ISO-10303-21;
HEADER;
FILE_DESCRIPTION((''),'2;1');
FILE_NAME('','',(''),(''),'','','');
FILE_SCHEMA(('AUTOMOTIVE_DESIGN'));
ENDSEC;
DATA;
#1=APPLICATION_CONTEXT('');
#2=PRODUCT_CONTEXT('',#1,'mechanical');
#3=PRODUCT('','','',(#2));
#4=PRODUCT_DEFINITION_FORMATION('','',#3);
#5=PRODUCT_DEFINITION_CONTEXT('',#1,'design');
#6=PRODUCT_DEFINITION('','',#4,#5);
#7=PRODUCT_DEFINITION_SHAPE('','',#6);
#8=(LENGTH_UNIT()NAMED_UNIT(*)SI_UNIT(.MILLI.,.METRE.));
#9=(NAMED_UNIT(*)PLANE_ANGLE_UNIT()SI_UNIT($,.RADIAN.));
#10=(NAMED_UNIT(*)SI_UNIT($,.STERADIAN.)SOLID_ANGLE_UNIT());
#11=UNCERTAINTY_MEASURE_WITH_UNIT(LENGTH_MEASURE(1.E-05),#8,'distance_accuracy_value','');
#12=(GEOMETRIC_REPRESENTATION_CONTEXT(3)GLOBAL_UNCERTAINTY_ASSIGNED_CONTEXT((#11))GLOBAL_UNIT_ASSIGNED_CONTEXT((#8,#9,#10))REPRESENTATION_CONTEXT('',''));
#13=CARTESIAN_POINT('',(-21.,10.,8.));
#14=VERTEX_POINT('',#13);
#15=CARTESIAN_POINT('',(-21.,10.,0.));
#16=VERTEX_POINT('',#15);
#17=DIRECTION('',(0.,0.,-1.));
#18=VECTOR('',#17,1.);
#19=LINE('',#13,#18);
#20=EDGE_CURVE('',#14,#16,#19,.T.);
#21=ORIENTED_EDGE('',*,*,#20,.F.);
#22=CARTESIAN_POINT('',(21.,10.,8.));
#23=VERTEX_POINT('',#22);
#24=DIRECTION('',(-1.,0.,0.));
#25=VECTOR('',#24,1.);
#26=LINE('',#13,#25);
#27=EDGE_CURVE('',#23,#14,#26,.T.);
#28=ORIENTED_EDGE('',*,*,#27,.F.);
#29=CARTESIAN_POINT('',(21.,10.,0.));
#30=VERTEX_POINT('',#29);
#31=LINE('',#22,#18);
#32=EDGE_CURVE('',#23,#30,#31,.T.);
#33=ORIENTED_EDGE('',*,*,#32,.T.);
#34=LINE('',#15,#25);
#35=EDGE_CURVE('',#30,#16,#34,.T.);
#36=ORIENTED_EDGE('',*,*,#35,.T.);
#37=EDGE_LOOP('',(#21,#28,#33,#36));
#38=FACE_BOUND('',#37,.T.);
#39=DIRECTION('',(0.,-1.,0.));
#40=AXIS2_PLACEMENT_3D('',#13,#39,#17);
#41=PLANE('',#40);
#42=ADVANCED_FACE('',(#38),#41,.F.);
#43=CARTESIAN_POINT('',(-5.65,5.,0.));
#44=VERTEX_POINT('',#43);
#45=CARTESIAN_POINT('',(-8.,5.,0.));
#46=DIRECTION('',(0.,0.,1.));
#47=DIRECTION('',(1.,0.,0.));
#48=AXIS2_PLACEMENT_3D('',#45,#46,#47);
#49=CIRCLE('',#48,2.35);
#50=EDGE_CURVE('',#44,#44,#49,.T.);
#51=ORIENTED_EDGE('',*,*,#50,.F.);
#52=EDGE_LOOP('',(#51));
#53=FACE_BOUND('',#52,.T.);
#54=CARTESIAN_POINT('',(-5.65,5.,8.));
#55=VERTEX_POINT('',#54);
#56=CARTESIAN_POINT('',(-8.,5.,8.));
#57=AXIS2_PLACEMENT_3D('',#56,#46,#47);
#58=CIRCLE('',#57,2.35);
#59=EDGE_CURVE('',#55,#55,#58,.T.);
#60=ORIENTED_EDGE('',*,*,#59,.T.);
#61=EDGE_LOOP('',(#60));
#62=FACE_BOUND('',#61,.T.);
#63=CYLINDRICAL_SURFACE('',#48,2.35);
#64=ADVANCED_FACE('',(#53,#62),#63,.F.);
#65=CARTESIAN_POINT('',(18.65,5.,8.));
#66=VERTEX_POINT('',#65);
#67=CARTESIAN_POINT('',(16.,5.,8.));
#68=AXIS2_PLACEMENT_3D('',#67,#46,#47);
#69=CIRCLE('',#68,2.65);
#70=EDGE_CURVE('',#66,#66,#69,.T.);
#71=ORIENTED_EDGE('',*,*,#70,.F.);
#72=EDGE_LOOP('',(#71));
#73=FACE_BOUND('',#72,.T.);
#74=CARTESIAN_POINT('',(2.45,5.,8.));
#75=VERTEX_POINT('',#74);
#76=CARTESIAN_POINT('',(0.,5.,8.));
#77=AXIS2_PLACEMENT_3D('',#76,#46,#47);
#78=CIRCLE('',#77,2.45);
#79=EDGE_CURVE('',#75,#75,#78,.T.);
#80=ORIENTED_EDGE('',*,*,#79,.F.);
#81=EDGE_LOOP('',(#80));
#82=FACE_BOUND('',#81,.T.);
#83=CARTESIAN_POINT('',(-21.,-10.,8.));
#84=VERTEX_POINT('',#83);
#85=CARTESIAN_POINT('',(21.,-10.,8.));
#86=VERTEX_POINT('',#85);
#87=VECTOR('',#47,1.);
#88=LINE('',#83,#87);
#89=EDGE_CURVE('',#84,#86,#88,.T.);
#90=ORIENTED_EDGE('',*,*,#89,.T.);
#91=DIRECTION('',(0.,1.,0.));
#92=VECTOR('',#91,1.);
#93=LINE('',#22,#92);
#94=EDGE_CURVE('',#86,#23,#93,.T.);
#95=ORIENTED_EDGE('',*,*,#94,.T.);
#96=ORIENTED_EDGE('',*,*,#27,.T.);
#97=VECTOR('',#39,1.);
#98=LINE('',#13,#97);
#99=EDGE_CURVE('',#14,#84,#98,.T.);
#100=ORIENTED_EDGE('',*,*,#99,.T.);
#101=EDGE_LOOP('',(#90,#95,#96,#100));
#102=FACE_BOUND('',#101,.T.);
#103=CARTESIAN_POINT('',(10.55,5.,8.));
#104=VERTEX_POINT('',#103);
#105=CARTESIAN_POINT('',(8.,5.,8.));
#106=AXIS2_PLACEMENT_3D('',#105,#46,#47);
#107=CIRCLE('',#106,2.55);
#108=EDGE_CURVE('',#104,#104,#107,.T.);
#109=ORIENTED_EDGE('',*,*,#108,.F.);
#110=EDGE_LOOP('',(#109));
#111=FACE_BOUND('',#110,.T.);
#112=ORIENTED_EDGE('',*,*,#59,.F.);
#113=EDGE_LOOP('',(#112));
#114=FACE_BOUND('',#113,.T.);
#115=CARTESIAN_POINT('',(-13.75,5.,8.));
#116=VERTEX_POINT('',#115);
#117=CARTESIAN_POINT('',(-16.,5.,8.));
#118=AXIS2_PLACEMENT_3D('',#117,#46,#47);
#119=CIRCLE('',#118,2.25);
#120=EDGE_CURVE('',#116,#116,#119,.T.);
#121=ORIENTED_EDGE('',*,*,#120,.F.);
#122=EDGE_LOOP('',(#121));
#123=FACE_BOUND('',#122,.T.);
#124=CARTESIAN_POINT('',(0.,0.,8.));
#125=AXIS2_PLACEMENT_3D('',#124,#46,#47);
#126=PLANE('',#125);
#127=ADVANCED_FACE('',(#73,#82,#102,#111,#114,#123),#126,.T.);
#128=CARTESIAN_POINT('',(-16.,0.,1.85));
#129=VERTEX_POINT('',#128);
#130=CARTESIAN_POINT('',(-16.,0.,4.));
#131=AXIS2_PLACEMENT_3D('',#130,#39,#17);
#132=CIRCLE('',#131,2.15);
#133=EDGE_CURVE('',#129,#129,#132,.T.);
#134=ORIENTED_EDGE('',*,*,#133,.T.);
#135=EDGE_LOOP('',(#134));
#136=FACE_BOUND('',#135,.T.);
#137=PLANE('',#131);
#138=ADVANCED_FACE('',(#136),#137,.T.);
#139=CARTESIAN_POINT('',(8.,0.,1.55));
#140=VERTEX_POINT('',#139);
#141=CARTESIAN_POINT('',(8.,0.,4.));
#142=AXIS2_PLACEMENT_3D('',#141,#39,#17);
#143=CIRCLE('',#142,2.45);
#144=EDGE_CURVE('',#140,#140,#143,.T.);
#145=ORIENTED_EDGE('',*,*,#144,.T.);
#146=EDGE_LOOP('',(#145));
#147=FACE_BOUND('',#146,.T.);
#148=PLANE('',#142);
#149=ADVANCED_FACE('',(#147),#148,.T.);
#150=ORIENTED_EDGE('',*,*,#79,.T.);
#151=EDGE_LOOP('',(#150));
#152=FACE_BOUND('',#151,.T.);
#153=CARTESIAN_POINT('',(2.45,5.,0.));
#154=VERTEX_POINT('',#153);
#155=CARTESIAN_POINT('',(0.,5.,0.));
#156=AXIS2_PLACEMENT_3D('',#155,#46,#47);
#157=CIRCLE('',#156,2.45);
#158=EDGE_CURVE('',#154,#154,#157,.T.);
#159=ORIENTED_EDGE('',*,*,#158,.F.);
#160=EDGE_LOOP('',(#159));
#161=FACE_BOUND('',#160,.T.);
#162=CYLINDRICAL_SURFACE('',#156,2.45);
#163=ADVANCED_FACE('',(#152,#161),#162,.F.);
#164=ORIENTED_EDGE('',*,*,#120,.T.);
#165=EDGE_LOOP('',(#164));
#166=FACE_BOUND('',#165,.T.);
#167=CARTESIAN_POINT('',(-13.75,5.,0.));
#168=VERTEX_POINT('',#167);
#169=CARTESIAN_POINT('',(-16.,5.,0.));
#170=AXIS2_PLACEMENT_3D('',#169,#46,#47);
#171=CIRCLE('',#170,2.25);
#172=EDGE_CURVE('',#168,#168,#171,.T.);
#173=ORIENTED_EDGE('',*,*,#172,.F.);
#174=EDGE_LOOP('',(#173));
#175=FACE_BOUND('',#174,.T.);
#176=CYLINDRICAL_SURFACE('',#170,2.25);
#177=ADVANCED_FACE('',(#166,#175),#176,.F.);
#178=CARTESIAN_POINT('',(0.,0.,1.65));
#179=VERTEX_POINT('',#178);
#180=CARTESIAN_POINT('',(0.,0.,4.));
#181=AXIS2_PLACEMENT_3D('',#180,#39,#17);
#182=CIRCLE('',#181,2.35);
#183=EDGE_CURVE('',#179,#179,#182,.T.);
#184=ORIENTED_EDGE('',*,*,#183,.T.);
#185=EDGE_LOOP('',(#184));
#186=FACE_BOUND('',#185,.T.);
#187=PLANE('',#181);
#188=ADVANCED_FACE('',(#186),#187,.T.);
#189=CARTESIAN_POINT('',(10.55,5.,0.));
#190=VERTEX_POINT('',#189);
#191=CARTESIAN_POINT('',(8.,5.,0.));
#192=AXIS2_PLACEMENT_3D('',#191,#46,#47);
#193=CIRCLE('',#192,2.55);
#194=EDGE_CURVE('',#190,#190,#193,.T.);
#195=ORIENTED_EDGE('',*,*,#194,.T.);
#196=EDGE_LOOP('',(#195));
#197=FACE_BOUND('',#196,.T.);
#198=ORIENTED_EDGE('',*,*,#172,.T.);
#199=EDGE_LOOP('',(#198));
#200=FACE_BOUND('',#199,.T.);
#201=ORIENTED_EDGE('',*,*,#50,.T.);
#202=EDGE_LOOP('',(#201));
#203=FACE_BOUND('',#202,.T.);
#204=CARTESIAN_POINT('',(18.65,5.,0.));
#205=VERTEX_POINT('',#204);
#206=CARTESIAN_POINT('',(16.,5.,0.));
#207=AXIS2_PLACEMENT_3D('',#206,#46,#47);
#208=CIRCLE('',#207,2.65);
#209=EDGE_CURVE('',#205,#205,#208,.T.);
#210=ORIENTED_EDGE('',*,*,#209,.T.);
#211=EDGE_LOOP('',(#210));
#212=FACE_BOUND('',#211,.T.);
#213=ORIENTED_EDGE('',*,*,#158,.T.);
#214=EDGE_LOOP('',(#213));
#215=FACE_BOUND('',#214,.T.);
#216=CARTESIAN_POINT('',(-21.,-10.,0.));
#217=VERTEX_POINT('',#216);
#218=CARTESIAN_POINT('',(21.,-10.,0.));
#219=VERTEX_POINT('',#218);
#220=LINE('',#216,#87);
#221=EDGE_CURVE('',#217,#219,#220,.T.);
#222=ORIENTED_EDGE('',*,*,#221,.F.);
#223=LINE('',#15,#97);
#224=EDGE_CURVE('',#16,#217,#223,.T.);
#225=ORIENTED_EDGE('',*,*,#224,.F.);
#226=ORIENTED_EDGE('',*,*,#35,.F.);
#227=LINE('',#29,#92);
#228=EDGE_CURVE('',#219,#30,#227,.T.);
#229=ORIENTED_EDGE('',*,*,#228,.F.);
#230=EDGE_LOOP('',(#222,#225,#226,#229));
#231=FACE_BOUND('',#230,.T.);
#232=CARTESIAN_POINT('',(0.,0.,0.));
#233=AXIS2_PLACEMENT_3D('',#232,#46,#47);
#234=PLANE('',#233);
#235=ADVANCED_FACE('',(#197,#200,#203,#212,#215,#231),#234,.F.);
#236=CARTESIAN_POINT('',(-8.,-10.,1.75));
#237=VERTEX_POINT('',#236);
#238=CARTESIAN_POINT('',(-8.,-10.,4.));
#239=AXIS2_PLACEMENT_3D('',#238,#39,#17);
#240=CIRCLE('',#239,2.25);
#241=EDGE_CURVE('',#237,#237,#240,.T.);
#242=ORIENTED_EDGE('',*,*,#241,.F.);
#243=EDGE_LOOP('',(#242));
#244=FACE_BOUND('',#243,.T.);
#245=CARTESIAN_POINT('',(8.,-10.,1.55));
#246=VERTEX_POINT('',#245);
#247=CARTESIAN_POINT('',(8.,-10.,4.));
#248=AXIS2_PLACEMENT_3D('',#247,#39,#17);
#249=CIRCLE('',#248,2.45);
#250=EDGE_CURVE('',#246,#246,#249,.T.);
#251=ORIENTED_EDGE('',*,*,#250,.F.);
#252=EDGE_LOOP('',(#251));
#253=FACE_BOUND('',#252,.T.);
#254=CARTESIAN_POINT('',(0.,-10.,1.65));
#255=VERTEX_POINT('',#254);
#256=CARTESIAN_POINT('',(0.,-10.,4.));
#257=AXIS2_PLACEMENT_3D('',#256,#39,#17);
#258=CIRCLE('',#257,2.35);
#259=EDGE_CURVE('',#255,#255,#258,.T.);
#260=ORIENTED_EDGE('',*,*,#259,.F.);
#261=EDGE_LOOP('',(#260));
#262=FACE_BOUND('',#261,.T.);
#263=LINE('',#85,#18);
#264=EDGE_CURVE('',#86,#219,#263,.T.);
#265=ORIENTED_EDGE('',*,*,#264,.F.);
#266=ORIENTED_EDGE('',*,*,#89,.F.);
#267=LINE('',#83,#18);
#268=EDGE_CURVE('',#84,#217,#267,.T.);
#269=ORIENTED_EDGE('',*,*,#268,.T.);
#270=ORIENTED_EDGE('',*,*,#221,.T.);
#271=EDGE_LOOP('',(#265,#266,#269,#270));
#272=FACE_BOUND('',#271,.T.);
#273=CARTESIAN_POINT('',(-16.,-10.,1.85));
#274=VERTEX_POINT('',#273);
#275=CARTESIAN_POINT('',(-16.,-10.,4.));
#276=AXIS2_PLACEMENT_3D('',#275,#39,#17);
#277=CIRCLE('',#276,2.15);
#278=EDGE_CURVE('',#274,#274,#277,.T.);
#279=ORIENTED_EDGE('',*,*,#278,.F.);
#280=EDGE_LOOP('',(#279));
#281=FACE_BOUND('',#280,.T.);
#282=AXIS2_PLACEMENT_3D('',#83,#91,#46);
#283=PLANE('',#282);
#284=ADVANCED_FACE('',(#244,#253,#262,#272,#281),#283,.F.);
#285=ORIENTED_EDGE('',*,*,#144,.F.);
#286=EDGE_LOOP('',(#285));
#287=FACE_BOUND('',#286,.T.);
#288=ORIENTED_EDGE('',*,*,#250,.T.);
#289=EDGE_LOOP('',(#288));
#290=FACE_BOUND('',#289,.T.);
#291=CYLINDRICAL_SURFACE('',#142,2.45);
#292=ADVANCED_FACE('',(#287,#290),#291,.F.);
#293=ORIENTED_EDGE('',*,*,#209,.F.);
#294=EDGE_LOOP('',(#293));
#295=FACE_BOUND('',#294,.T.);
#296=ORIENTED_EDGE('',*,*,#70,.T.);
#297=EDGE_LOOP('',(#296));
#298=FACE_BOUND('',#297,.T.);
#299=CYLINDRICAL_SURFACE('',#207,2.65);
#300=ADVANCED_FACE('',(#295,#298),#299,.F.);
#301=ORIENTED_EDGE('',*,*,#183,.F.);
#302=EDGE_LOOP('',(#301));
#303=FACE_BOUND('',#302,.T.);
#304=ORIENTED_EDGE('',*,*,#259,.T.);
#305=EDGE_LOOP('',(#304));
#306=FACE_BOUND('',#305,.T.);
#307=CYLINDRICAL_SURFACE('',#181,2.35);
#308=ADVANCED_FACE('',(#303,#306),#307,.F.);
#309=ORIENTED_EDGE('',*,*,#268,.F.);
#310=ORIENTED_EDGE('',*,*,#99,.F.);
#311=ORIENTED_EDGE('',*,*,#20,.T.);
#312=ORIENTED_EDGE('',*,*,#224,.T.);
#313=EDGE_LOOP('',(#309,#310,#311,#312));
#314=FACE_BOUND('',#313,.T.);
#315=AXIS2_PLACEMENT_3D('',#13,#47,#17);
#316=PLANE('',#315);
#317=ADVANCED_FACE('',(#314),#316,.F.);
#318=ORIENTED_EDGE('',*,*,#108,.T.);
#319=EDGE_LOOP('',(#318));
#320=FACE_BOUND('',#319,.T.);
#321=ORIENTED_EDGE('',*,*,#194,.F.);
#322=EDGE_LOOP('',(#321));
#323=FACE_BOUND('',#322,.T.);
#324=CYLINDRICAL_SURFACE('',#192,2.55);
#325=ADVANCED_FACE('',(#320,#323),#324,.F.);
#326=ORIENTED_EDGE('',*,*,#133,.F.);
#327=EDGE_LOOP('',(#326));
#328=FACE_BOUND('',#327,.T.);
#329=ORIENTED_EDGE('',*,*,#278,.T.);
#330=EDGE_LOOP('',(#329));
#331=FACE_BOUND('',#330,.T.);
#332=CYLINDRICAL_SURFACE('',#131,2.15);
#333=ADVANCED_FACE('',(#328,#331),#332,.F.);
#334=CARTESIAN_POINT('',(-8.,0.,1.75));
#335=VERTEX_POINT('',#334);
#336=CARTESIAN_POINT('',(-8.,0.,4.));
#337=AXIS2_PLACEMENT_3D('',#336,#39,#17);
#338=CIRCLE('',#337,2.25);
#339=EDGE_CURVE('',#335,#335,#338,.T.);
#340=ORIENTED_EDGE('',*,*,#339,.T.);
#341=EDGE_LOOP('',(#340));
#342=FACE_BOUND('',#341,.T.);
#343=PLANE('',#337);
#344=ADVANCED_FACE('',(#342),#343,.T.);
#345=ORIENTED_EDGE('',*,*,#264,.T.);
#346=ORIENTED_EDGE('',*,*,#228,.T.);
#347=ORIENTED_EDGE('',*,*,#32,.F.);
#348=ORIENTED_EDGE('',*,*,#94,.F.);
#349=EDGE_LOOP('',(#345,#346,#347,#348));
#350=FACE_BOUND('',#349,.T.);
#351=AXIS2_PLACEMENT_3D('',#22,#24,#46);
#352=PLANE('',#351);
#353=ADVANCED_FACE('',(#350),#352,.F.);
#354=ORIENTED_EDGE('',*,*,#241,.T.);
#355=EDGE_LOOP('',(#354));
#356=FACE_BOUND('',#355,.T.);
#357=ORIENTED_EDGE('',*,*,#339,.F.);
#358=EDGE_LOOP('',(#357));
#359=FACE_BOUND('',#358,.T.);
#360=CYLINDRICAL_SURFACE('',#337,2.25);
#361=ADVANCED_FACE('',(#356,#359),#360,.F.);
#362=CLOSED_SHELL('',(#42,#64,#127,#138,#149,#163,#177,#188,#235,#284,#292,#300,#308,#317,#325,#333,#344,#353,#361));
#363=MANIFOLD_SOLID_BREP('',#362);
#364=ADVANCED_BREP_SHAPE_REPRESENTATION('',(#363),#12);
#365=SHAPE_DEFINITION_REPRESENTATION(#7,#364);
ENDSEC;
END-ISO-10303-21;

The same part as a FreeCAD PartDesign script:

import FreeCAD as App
import Part
import Sketcher

V = App.Vector
Q = App.Units.Quantity

doc = App.newDocument("Part")
body = doc.addObject("PartDesign::Body", "Body")

# Sketch on XY plane
sketch1 = body.newObject("Sketcher::SketchObject", "Sketch")
sketch1.AttachmentSupport = (doc.getObject("XY_Plane"), [""])
sketch1.MapMode = "FlatFace"
sketch1.addGeometry([
    Part.LineSegment(V(-21, 10, 0), V(-21, -10, 0)),
    Part.LineSegment(V(-21, -10, 0), V(21, -10, 0)),
    Part.LineSegment(V(21, -10, 0), V(21, 10, 0)),
    Part.LineSegment(V(21, 10, 0), V(-21, 10, 0)),
], False)
sketch1.addConstraint([
    Sketcher.Constraint("Coincident", 0, 2, 1, 1),
    Sketcher.Constraint("Coincident", 1, 2, 2, 1),
    Sketcher.Constraint("Coincident", 2, 2, 3, 1),
    Sketcher.Constraint("Coincident", 3, 2, 0, 1),
    Sketcher.Constraint("Vertical", 0),
    Sketcher.Constraint("Horizontal", 1),
    Sketcher.Constraint("Vertical", 2),
    Sketcher.Constraint("Horizontal", 3),
    Sketcher.Constraint("Symmetric", 0, 2, 2, 2, -1, 1),
    Sketcher.Constraint("DistanceX", 1, 1, 1, 2, Q("42 mm")),
    Sketcher.Constraint("DistanceY", 0, 2, 0, 1, Q("20 mm")),
])
pad1 = body.newObject("PartDesign::Pad", "Pad")
pad1.Profile = sketch1
pad1.Length = 8

# Sketch on XY plane
sketch2 = body.newObject("Sketcher::SketchObject", "Sketch001")
sketch2.AttachmentSupport = (doc.getObject("XY_Plane"), [""])
sketch2.MapMode = "FlatFace"
sketch2.AttachmentOffset = App.Placement(V(0, 0, 8), App.Rotation())
sketch2.addGeometry([
    Part.Circle(V(-16, 5, 0), V(0, 0, 1), 2.25),  # 0
    Part.Circle(V(-8, 5, 0), V(0, 0, 1), 2.35),  # 1
    Part.Circle(V(0, 5, 0), V(0, 0, 1), 2.45),  # 2
    Part.Circle(V(8, 5, 0), V(0, 0, 1), 2.55),  # 3
    Part.Circle(V(16, 5, 0), V(0, 0, 1), 2.65),  # 4
], False)
sketch2.addConstraint([
    Sketcher.Constraint("Symmetric", 1, 3, 3, 3, -2),
    Sketcher.Constraint("Symmetric", 0, 3, 4, 3, -2),
    Sketcher.Constraint("PointOnObject", 2, 3, -2),
    Sketcher.Constraint("Horizontal", 0, 3, 1, 3),
    Sketcher.Constraint("Horizontal", 1, 3, 2, 3),
    Sketcher.Constraint("Diameter", 0, Q("4.5 mm")),
    Sketcher.Constraint("Diameter", 1, Q("4.7 mm")),
    Sketcher.Constraint("Diameter", 2, Q("4.9 mm")),
    Sketcher.Constraint("Diameter", 3, Q("5.1 mm")),
    Sketcher.Constraint("Diameter", 4, Q("5.3 mm")),
    Sketcher.Constraint("DistanceX", 0, 3, -1, 1, Q("16 mm")),
    Sketcher.Constraint("DistanceY", -1, 1, 0, 3, Q("5 mm")),
    Sketcher.Constraint("DistanceX", 1, 3, -1, 1, Q("8 mm")),
])
pocket1 = body.newObject("PartDesign::Pocket", "Pocket")
pocket1.Profile = sketch2
pocket1.Type = "ThroughAll"

# Sketch on XZ plane
sketch3 = body.newObject("Sketcher::SketchObject", "Sketch002")
sketch3.AttachmentSupport = (doc.getObject("XZ_Plane"), [""])
sketch3.MapMode = "FlatFace"
sketch3.AttachmentOffset = App.Placement(V(0, 0, 10), App.Rotation())
sketch3.addGeometry([
    Part.Circle(V(-16, 4, 0), V(0, 0, 1), 2.15),
    Part.Circle(V(-8, 4, 0), V(0, 0, 1), 2.25),
    Part.Circle(V(0, 4, 0), V(0, 0, 1), 2.35),
    Part.Circle(V(8, 4, 0), V(0, 0, 1), 2.45),
], False)
sketch3.addConstraint([
    Sketcher.Constraint("Symmetric", 1, 3, 3, 3, -2),
    Sketcher.Constraint("PointOnObject", 2, 3, -2),
    Sketcher.Constraint("Horizontal", 0, 3, 1, 3),
    Sketcher.Constraint("Horizontal", 1, 3, 2, 3),
    Sketcher.Constraint("Diameter", 0, Q("4.3 mm")),
    Sketcher.Constraint("Diameter", 1, Q("4.5 mm")),
    Sketcher.Constraint("Diameter", 2, Q("4.7 mm")),
    Sketcher.Constraint("Diameter", 3, Q("4.9 mm")),
    Sketcher.Constraint("DistanceX", 0, 3, -1, 1, Q("16 mm")),
    Sketcher.Constraint("DistanceY", -1, 1, 0, 3, Q("4 mm")),
    Sketcher.Constraint("DistanceX", 1, 3, -1, 1, Q("8 mm")),
])
pocket2 = body.newObject("PartDesign::Pocket", "Pocket001")
pocket2.Profile = sketch3
pocket2.Length = 10

doc.recompute()
